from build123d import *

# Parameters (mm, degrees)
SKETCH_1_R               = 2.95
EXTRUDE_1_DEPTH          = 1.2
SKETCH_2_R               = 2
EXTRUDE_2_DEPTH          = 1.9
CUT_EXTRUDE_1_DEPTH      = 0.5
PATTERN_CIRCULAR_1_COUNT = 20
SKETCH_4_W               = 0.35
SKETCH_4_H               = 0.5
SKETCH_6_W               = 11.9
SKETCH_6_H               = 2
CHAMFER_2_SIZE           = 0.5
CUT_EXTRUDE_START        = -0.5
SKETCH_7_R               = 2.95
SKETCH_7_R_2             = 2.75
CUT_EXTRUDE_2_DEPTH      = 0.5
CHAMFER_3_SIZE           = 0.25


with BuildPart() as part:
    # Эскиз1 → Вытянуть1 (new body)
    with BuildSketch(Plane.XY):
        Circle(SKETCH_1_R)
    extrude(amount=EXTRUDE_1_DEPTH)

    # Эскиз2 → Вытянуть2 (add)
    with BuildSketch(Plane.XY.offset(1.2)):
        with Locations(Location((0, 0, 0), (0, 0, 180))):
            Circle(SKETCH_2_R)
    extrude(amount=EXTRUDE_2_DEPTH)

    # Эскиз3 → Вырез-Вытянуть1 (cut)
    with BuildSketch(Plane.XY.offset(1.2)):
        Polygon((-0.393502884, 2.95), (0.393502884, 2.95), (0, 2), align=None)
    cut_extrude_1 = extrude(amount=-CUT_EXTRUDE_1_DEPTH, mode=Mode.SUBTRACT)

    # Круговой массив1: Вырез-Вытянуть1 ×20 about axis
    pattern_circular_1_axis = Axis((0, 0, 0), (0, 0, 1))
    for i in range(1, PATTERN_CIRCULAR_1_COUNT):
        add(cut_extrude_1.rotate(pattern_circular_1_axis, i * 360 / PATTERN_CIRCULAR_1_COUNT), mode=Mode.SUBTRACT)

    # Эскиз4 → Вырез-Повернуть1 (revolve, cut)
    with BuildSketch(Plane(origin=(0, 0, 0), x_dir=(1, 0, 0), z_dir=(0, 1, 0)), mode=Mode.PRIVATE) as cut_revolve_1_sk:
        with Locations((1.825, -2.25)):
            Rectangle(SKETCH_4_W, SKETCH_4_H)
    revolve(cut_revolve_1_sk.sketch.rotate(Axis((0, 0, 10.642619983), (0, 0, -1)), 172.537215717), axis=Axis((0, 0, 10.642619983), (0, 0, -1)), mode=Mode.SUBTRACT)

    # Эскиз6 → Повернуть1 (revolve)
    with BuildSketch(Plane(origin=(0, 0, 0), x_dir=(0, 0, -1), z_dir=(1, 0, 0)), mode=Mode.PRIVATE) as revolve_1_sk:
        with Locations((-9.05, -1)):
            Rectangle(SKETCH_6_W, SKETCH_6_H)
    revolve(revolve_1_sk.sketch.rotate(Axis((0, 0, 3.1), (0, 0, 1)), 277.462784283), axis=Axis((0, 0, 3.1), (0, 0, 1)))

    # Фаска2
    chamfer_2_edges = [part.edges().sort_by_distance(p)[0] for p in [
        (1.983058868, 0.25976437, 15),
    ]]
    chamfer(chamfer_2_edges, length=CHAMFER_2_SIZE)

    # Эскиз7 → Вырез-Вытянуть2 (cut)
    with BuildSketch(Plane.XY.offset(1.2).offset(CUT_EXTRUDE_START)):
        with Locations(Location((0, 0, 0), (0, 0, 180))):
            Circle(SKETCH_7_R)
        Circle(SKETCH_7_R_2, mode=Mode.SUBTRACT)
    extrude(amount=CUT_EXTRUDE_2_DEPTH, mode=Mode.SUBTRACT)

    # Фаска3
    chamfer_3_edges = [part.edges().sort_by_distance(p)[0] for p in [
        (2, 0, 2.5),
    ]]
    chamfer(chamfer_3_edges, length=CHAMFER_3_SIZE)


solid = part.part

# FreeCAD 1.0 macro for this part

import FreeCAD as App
import Part
import Sketcher
Q = App.Units.Quantity


def edges_at(feature, points):
    """Names of the edges that pass closest to the given points."""
    edges = feature.Shape.Edges
    near = lambda p: min(range(len(edges)), key=lambda i: edges[i].distToShape(Part.Vertex(*p))[0])
    return sorted({f"Edge{near(p) + 1}" for p in points})

doc = App.newDocument("Part")
body = doc.addObject("PartDesign::Body", "Body")

sketch1 = body.newObject("Sketcher::SketchObject", "Sketch")
sketch1.AttachmentSupport = (doc.getObject("XY_Plane"), [""])
sketch1.MapMode = "FlatFace"
sketch1.addGeometry(Part.Circle(App.Vector(0, 0, 0), App.Vector(0, 0, 1), 3), False)
sketch1.addConstraint([
    Sketcher.Constraint("Coincident", 0, 3, -1, 1),
    Sketcher.Constraint("Diameter", 0, 5.9),
])
pad1 = body.newObject("PartDesign::Pad", "Pad")
pad1.Profile = sketch1
pad1.Length = 1.2

sketch2 = body.newObject("Sketcher::SketchObject", "Sketch001")
sketch2.AttachmentSupport = (doc.getObject("XY_Plane"), [""])
sketch2.MapMode = "FlatFace"
sketch2.AttachmentOffset = App.Placement(App.Vector(0, 0, 1.2), App.Rotation())
sketch2.addGeometry(Part.Circle(App.Vector(0, 0, 0), App.Vector(0, 0, 1), 2), False)
sketch2.addConstraint([
    Sketcher.Constraint("Coincident", 0, 3, -1, 1),
    Sketcher.Constraint("Diameter", 0, 4.0),
])
pad2 = body.newObject("PartDesign::Pad", "Pad001")
pad2.Profile = sketch2
pad2.Length = 1.9

sketch3 = body.newObject("Sketcher::SketchObject", "Sketch002")
sketch3.AttachmentSupport = (doc.getObject("XY_Plane"), [""])
sketch3.MapMode = "FlatFace"
sketch3.AttachmentOffset = App.Placement(App.Vector(0, 0, 1.2), App.Rotation())
sketch3.addGeometry([
    Part.LineSegment(App.Vector(0.4, 3, 0), App.Vector(-0.4, 3, 0)),
    Part.LineSegment(App.Vector(-0.4, 3, 0), App.Vector(0, 2, 0)),
    Part.LineSegment(App.Vector(0, 2, 0), App.Vector(0.4, 3, 0)),
], False)
sketch3.addConstraint([
    Sketcher.Constraint("Coincident", 0, 2, 1, 1),
    Sketcher.Constraint("Coincident", 1, 2, 2, 1),
    Sketcher.Constraint("Coincident", 2, 2, 0, 1),
    Sketcher.Constraint("Horizontal", 0),
    Sketcher.Constraint("PointOnObject", 1, 2, -2),
    Sketcher.Constraint("Equal", 1, 2),
    Sketcher.Constraint("DistanceY", -1, 1, 1, 2, 2.0),
    Sketcher.Constraint("Angle", 1, Q("-67.5 deg")),
    Sketcher.Constraint("DistanceY", -1, 1, 0, 2, 2.95),
])
pocket1 = body.newObject("PartDesign::Pocket", "Pocket")
pocket1.Profile = sketch3
pocket1.Length = 0.5
doc.recompute()

polarpattern = body.newObject("PartDesign::PolarPattern", "PolarPattern")
polarpattern.Originals = [pocket1]
polarpattern.Axis = (doc.getObject("Z_Axis"), [""])
polarpattern.Angle = 360
polarpattern.Occurrences = 20
body.Tip = polarpattern

sketch4 = body.newObject("Sketcher::SketchObject", "Sketch003")
sketch4.AttachmentSupport = (doc.getObject("XZ_Plane"), [""])
sketch4.MapMode = "FlatFace"
sketch4.addGeometry([
    Part.LineSegment(App.Vector(1.65, 2, 0), App.Vector(1.65, 2.5, 0)),
    Part.LineSegment(App.Vector(1.65, 2.5, 0), App.Vector(2, 2.5, 0)),
    Part.LineSegment(App.Vector(2, 2.5, 0), App.Vector(2, 2, 0)),
    Part.LineSegment(App.Vector(2, 2, 0), App.Vector(1.65, 2, 0)),
], False)
sketch4.addConstraint([
    Sketcher.Constraint("Coincident", 0, 2, 1, 1),
    Sketcher.Constraint("Coincident", 1, 2, 2, 1),
    Sketcher.Constraint("Coincident", 2, 2, 3, 1),
    Sketcher.Constraint("Coincident", 3, 2, 0, 1),
    Sketcher.Constraint("Vertical", 0),
    Sketcher.Constraint("Horizontal", 1),
    Sketcher.Constraint("Vertical", 2),
    Sketcher.Constraint("Horizontal", 3),
    Sketcher.Constraint("DistanceY", 0, 1, 0, 2, 0.5),
    Sketcher.Constraint("DistanceX", -1, 1, 1, 2, 2.0),
    Sketcher.Constraint("DistanceY", -1, 1, 2, 2, 2.0),
    Sketcher.Constraint("DistanceX", 1, 1, 1, 2, 0.35),
])
groove = body.newObject("PartDesign::Groove", "Groove")
groove.Profile = sketch4
groove.ReferenceAxis = (sketch4, ["V_Axis"])
groove.Angle = 360

sketch5 = body.newObject("Sketcher::SketchObject", "Sketch004")
sketch5.AttachmentSupport = (doc.getObject("YZ_Plane"), [""])
sketch5.MapMode = "FlatFace"
sketch5.addGeometry([
    Part.LineSegment(App.Vector(0, 15, 0), App.Vector(-2, 15, 0)),
    Part.LineSegment(App.Vector(-2, 15, 0), App.Vector(-2, 3.1, 0)),
    Part.LineSegment(App.Vector(-2, 3.1, 0), App.Vector(0, 3.1, 0)),
    Part.LineSegment(App.Vector(0, 3.1, 0), App.Vector(0, 15, 0)),
], False)
sketch5.addConstraint([
    Sketcher.Constraint("Coincident", 0, 2, 1, 1),
    Sketcher.Constraint("Coincident", 1, 2, 2, 1),
    Sketcher.Constraint("Coincident", 2, 2, 3, 1),
    Sketcher.Constraint("Coincident", 3, 2, 0, 1),
    Sketcher.Constraint("Horizontal", 0),
    Sketcher.Constraint("Vertical", 1),
    Sketcher.Constraint("Horizontal", 2),
    Sketcher.Constraint("Vertical", 3),
    Sketcher.Constraint("PointOnObject", 2, 2, -2),
    Sketcher.Constraint("DistanceX", 0, 2, 0, 1, 2.0),
    Sketcher.Constraint("DistanceY", 1, 2, 1, 1, 11.9),
    Sketcher.Constraint("DistanceY", -1, 1, 0, 2, 15.0),
])
revolution = body.newObject("PartDesign::Revolution", "Revolution")
revolution.Profile = sketch5
revolution.ReferenceAxis = (sketch5, ["V_Axis"])
revolution.Angle = 360
doc.recompute()

chamfer = body.newObject("PartDesign::Chamfer", "Chamfer")
chamfer.Base = (revolution, edges_at(revolution, [(1.983, 0.26, 15)]))
chamfer.Size = 0.5

sketch6 = body.newObject("Sketcher::SketchObject", "Sketch005")
sketch6.AttachmentSupport = (doc.getObject("XY_Plane"), [""])
sketch6.MapMode = "FlatFace"
sketch6.AttachmentOffset = App.Placement(App.Vector(0, 0, 0.7), App.Rotation())
sketch6.addGeometry([
    Part.Circle(App.Vector(0, 0, 0), App.Vector(0, 0, 1), 3),
    Part.Circle(App.Vector(0, 0, 0), App.Vector(0, 0, 1), 2.8),
], False)
sketch6.addConstraint([
    Sketcher.Constraint("Coincident", 0, 3, -1, 1),
    Sketcher.Constraint("Coincident", 1, 3, -1, 1),
    Sketcher.Constraint("Diameter", 0, 5.9),
    Sketcher.Constraint("Diameter", 1, 5.5),
])
pocket2 = body.newObject("PartDesign::Pocket", "Pocket001")
pocket2.Profile = sketch6
pocket2.Length = 0.5
pocket2.Reversed = True
doc.recompute()

chamfer2 = body.newObject("PartDesign::Chamfer", "Chamfer001")
chamfer2.Base = (pocket2, edges_at(pocket2, [(2, 0, 2.5)]))
chamfer2.Size = 0.25

doc.recompute()
